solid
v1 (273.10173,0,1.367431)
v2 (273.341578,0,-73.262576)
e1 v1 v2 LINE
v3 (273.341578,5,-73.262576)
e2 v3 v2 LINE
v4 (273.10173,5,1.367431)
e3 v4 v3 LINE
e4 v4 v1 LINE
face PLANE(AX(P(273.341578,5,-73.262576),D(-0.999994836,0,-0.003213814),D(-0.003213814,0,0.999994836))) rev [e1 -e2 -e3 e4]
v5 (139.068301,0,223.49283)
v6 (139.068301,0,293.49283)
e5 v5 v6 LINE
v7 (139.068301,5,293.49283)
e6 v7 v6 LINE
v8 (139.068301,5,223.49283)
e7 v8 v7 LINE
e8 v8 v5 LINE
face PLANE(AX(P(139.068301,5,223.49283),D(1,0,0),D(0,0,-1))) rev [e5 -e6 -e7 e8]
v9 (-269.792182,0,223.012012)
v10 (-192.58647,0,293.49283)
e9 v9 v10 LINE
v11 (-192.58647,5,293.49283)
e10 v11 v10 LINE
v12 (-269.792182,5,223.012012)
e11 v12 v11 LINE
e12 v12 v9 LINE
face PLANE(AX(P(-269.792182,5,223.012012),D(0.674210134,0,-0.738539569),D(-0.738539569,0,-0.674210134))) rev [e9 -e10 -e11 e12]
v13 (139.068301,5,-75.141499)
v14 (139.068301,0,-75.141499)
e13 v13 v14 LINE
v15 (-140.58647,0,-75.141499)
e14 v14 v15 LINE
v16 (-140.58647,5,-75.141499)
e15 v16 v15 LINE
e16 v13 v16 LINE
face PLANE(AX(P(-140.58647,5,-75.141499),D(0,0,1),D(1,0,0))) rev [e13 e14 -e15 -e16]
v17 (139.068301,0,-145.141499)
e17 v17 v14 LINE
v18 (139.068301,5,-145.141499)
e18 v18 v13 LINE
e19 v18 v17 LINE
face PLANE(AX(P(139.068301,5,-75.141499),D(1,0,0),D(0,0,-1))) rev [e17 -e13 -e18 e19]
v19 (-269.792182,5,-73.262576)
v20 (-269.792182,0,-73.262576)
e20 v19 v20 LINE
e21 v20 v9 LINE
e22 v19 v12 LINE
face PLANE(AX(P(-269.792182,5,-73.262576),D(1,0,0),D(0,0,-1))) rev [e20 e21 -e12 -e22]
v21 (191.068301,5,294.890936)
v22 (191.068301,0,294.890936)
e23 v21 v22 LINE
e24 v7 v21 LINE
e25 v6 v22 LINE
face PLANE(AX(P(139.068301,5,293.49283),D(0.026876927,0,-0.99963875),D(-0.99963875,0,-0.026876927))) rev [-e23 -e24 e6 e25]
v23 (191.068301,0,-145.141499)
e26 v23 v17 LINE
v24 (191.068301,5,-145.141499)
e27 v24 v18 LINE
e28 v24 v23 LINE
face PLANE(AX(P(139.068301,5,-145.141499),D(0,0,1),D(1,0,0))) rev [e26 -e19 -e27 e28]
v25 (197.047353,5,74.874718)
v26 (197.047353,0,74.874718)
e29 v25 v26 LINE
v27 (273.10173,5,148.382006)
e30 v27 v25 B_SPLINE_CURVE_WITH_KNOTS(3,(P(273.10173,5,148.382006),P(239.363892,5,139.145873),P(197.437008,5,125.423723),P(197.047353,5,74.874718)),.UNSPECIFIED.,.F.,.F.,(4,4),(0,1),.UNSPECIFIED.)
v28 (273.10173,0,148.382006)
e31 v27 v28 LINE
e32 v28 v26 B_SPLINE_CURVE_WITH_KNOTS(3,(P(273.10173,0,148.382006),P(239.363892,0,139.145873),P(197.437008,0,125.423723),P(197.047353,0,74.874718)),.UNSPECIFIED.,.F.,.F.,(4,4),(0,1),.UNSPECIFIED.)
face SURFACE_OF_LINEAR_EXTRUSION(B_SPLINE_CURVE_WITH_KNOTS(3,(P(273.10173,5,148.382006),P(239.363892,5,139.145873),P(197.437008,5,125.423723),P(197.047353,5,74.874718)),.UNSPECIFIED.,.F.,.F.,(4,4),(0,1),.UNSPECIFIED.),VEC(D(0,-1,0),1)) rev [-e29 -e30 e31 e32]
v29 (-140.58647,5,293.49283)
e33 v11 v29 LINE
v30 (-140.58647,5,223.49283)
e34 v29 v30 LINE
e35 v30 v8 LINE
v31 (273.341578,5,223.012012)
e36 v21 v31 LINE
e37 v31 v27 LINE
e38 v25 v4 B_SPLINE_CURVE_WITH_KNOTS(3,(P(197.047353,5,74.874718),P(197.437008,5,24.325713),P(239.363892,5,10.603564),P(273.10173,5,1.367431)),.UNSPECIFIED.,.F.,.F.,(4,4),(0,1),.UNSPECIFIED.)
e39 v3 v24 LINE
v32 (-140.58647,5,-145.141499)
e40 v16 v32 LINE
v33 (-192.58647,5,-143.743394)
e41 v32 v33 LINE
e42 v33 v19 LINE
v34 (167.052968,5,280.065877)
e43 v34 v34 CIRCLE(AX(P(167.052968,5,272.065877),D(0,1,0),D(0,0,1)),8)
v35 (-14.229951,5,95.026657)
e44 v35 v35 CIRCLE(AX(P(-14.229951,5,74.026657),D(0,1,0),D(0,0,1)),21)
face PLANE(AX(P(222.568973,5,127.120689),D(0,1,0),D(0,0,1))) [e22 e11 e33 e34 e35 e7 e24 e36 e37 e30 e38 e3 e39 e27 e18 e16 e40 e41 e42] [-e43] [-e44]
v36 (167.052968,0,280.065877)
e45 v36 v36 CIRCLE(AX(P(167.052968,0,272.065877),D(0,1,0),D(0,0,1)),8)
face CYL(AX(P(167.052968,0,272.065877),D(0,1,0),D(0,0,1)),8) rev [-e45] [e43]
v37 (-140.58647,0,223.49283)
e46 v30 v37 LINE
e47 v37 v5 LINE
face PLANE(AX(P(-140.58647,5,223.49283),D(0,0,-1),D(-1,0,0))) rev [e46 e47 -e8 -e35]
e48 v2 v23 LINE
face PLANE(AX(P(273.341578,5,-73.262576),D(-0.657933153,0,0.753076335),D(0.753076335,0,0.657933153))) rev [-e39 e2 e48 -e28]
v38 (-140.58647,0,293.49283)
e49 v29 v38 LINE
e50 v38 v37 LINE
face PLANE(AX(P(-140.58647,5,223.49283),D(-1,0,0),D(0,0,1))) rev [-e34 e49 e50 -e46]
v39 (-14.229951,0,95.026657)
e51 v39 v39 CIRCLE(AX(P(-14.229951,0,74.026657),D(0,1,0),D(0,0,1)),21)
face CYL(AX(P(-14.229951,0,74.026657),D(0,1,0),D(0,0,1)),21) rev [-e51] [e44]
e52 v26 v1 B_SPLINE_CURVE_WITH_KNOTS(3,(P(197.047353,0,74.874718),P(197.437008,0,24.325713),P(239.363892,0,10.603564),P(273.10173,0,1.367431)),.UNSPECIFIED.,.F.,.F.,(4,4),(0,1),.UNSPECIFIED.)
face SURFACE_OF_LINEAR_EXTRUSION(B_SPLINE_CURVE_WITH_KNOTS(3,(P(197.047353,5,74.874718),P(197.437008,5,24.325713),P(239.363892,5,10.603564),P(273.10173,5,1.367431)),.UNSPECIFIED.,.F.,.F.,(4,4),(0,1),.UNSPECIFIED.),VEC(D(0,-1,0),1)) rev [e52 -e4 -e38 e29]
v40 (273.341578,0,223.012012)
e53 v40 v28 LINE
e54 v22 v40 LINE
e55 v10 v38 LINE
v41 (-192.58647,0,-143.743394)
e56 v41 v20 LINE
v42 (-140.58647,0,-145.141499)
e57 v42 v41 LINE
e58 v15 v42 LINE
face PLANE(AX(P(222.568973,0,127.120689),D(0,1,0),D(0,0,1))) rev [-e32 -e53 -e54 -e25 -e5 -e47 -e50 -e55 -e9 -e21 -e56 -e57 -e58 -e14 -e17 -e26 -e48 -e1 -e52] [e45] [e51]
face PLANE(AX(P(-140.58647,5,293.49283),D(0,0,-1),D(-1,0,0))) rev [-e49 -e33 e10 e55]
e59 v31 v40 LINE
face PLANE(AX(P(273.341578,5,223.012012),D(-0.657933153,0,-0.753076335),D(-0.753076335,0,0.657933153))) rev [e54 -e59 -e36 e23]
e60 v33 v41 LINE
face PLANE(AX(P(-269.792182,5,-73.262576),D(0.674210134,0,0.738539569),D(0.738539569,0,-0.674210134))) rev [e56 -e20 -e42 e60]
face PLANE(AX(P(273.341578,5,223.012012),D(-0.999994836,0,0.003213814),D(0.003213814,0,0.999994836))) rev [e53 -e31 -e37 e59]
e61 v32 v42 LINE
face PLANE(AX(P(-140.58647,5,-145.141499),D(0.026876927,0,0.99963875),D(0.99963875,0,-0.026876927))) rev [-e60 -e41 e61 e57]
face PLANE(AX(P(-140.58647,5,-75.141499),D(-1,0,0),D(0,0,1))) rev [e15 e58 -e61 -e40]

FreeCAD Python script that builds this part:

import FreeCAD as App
import Part
import Sketcher
from FreeCAD import Vector
Q = App.Units.Quantity

doc = App.newDocument("Part")
body = doc.addObject("PartDesign::Body", "Body")

# Sketch on XZ plane
sketch1 = body.newObject("Sketcher::SketchObject", "Sketch")
sketch1.AttachmentSupport = (doc.getObject("XZ_Plane"), [""])
sketch1.MapMode = "FlatFace"
sketch1.addGeometry(Part.LineSegment(Vector(-269.792182, -73.262576, 0), Vector(-269.792182, 223.012012, 0)), False)
sketch1.addGeometry(Part.LineSegment(Vector(-269.792182, 223.012012, 0), Vector(-192.58647, 293.49283, 0)), False)
sketch1.addGeometry(Part.LineSegment(Vector(-192.58647, 293.49283, 0), Vector(-140.58647, 293.49283, 0)), False)
sketch1.addGeometry(Part.LineSegment(Vector(-140.58647, 293.49283, 0), Vector(-140.58647, 223.49283, 0)), False)
sketch1.addGeometry(Part.LineSegment(Vector(-140.58647, 223.49283, 0), Vector(139.068301, 223.49283, 0)), False)
sketch1.addGeometry(Part.LineSegment(Vector(139.068301, 223.49283, 0), Vector(139.068301, 293.49283, 0)), False)
sketch1.addGeometry(Part.LineSegment(Vector(139.068301, 293.49283, 0), Vector(191.068301, 294.890936, 0)), False)
sketch1.addGeometry(Part.LineSegment(Vector(191.068301, 294.890936, 0), Vector(273.341578, 223.012012, 0)), False)
sketch1.addGeometry(Part.LineSegment(Vector(273.341578, 223.012012, 0), Vector(273.10173, 148.382006, 0)), False)
sketch1.addGeometry(Part.BSplineCurve([Vector(273.10173, 148.382006, 0), Vector(239.363892, 139.145873, 0), Vector(197.437008, 125.423723, 0), Vector(197.047353, 74.874718, 0)], [4, 4], [0, 1], False, 3, [1, 1, 1, 1], False), False)
sketch1.addGeometry(Part.BSplineCurve([Vector(273.10173, 1.367431, 0), Vector(239.363892, 10.603564, 0), Vector(197.437008, 24.325713, 0), Vector(197.047353, 74.874718, 0)], [4, 4], [0, 1], False, 3, [1, 1, 1, 1], False), False)
sketch1.addGeometry(Part.LineSegment(Vector(273.10173, 1.367431, 0), Vector(273.341578, -73.262576, 0)), False)
sketch1.addGeometry(Part.LineSegment(Vector(273.341578, -73.262576, 0), Vector(191.068301, -145.141499, 0)), False)
sketch1.addGeometry(Part.LineSegment(Vector(191.068301, -145.141499, 0), Vector(139.068301, -145.141499, 0)), False)
sketch1.addGeometry(Part.LineSegment(Vector(139.068301, -145.141499, 0), Vector(139.068301, -75.141499, 0)), False)
sketch1.addGeometry(Part.LineSegment(Vector(139.068301, -75.141499, 0), Vector(-140.58647, -75.141499, 0)), False)
sketch1.addGeometry(Part.LineSegment(Vector(-140.58647, -75.141499, 0), Vector(-140.58647, -145.141499, 0)), False)
sketch1.addGeometry(Part.LineSegment(Vector(-140.58647, -145.141499, 0), Vector(-192.58647, -143.743394, 0)), False)
sketch1.addGeometry(Part.LineSegment(Vector(-192.58647, -143.743394, 0), Vector(-269.792182, -73.262576, 0)), False)
sketch1.addConstraint(Sketcher.Constraint("Block", 9))
sketch1.addConstraint(Sketcher.Constraint("Block", 10))
sketch1.addConstraint(Sketcher.Constraint("Coincident", 0, 2, 1, 1))
sketch1.addConstraint(Sketcher.Constraint("Coincident", 1, 2, 2, 1))
sketch1.addConstraint(Sketcher.Constraint("Coincident", 2, 2, 3, 1))
sketch1.addConstraint(Sketcher.Constraint("Coincident", 3, 2, 4, 1))
sketch1.addConstraint(Sketcher.Constraint("Coincident", 4, 2, 5, 1))
sketch1.addConstraint(Sketcher.Constraint("Coincident", 5, 2, 6, 1))
sketch1.addConstraint(Sketcher.Constraint("Coincident", 6, 2, 7, 1))
sketch1.addConstraint(Sketcher.Constraint("Coincident", 7, 2, 8, 1))
sketch1.addConstraint(Sketcher.Constraint("Coincident", 8, 2, 9, 1))
sketch1.addConstraint(Sketcher.Constraint("Coincident", 10, 1, 11, 1))
sketch1.addConstraint(Sketcher.Constraint("Coincident", 11, 2, 12, 1))
sketch1.addConstraint(Sketcher.Constraint("Coincident", 12, 2, 13, 1))
sketch1.addConstraint(Sketcher.Constraint("Coincident", 13, 2, 14, 1))
sketch1.addConstraint(Sketcher.Constraint("Coincident", 14, 2, 15, 1))
sketch1.addConstraint(Sketcher.Constraint("Coincident", 15, 2, 16, 1))
sketch1.addConstraint(Sketcher.Constraint("Coincident", 16, 2, 17, 1))
sketch1.addConstraint(Sketcher.Constraint("Coincident", 17, 2, 18, 1))
sketch1.addConstraint(Sketcher.Constraint("Coincident", 18, 2, 0, 1))
sketch1.addConstraint(Sketcher.Constraint("Vertical", 0))
sketch1.addConstraint(Sketcher.Constraint("Horizontal", 2))
sketch1.addConstraint(Sketcher.Constraint("Vertical", 3))
sketch1.addConstraint(Sketcher.Constraint("Horizontal", 4))
sketch1.addConstraint(Sketcher.Constraint("Vertical", 5))
sketch1.addConstraint(Sketcher.Constraint("Horizontal", 13))
sketch1.addConstraint(Sketcher.Constraint("Vertical", 14))
sketch1.addConstraint(Sketcher.Constraint("Horizontal", 15))
sketch1.addConstraint(Sketcher.Constraint("Vertical", 16))
sketch1.addConstraint(Sketcher.Constraint("Horizontal", 2, 2, 5, 2))
sketch1.addConstraint(Sketcher.Constraint("Horizontal", 0, 2, 7, 2))
sketch1.addConstraint(Sketcher.Constraint("Horizontal", 13, 2, 16, 2))
sketch1.addConstraint(Sketcher.Constraint("Horizontal", 11, 2, 18, 2))
sketch1.addConstraint(Sketcher.Constraint("Vertical", 7, 2, 11, 2))
sketch1.addConstraint(Sketcher.Constraint("Vertical", 6, 2, 12, 2))
sketch1.addConstraint(Sketcher.Constraint("Vertical", 5, 2, 13, 2))
sketch1.addConstraint(Sketcher.Constraint("Vertical", 3, 2, 15, 2))
sketch1.addConstraint(Sketcher.Constraint("Vertical", 1, 2, 17, 2))
sketch1.addConstraint(Sketcher.Constraint("Equal", 2, 13))
sketch1.addConstraint(Sketcher.Constraint("Equal", 5, 14))
sketch1.addConstraint(Sketcher.Constraint("Equal", 8, 11))
sketch1.addConstraint(Sketcher.Constraint("Equal", 7, 12))
sketch1.addConstraint(Sketcher.Constraint("Equal", 6, 17))
sketch1.addConstraint(Sketcher.Constraint("DistanceX", 2, 1, 2, 2, Q("52 mm")))
sketch1.addConstraint(Sketcher.Constraint("DistanceY", 3, 2, 3, 1, Q("70 mm")))
sketch1.addConstraint(Sketcher.Constraint("DistanceX", 4, 1, 4, 2, Q("279.654771 mm")))
sketch1.addConstraint(Sketcher.Constraint("DistanceX", -1, 1, 4, 2, Q("139.068301 mm")))
sketch1.addConstraint(Sketcher.Constraint("DistanceY", 12, 2, -1, 1, Q("145.141499 mm")))
sketch1.addConstraint(Sketcher.Constraint("Distance", 6, Q("52.018792 mm")))
sketch1.addConstraint(Sketcher.Constraint("Distance", 8, Q("74.630392 mm")))
sketch1.addConstraint(Sketcher.Constraint("DistanceY", 0, 1, 0, 2, Q("296.274588 mm")))
sketch1.addConstraint(Sketcher.Constraint("DistanceX", 0, 2, -1, 1, Q("269.792182 mm")))
pad1 = body.newObject("PartDesign::Pad", "Pad")
pad1.Profile = sketch1
pad1.Length = 5
pad1.Reversed = True

# Sketch on XZ plane
sketch2 = body.newObject("Sketcher::SketchObject", "Sketch001")
sketch2.AttachmentSupport = (doc.getObject("XZ_Plane"), [""])
sketch2.MapMode = "FlatFace"
sketch2.AttachmentOffset = App.Placement(Vector(0, 0, -5), App.Rotation())
sketch2.addGeometry(Part.Circle(Vector(-14.229951, 74.026657, 0), Vector(0, 0, 1), 21), False)
sketch2.addConstraint(Sketcher.Constraint("Diameter", 0, Q("42 mm")))
sketch2.addConstraint(Sketcher.Constraint("DistanceX", 0, 3, -1, 1, Q("14.229951 mm")))
sketch2.addConstraint(Sketcher.Constraint("DistanceY", -1, 1, 0, 3, Q("74.026657 mm")))
pocket1 = body.newObject("PartDesign::Pocket", "Pocket")
pocket1.Profile = sketch2
pocket1.Type = "ThroughAll"
pocket1.Reversed = True

# Sketch on XZ plane
sketch3 = body.newObject("Sketcher::SketchObject", "Sketch002")
sketch3.AttachmentSupport = (doc.getObject("XZ_Plane"), [""])
sketch3.MapMode = "FlatFace"
sketch3.AttachmentOffset = App.Placement(Vector(0, 0, -5), App.Rotation())
sketch3.addGeometry(Part.Circle(Vector(167.052968, 272.065877, 0), Vector(0, 0, 1), 8), False)
sketch3.addConstraint(Sketcher.Constraint("Diameter", 0, Q("16 mm")))
sketch3.addConstraint(Sketcher.Constraint("DistanceX", -1, 1, 0, 3, Q("167.052968 mm")))
sketch3.addConstraint(Sketcher.Constraint("DistanceY", -1, 1, 0, 3, Q("272.065877 mm")))
pocket2 = body.newObject("PartDesign::Pocket", "Pocket001")
pocket2.Profile = sketch3
pocket2.Type = "ThroughAll"
pocket2.Reversed = True

doc.recompute()
